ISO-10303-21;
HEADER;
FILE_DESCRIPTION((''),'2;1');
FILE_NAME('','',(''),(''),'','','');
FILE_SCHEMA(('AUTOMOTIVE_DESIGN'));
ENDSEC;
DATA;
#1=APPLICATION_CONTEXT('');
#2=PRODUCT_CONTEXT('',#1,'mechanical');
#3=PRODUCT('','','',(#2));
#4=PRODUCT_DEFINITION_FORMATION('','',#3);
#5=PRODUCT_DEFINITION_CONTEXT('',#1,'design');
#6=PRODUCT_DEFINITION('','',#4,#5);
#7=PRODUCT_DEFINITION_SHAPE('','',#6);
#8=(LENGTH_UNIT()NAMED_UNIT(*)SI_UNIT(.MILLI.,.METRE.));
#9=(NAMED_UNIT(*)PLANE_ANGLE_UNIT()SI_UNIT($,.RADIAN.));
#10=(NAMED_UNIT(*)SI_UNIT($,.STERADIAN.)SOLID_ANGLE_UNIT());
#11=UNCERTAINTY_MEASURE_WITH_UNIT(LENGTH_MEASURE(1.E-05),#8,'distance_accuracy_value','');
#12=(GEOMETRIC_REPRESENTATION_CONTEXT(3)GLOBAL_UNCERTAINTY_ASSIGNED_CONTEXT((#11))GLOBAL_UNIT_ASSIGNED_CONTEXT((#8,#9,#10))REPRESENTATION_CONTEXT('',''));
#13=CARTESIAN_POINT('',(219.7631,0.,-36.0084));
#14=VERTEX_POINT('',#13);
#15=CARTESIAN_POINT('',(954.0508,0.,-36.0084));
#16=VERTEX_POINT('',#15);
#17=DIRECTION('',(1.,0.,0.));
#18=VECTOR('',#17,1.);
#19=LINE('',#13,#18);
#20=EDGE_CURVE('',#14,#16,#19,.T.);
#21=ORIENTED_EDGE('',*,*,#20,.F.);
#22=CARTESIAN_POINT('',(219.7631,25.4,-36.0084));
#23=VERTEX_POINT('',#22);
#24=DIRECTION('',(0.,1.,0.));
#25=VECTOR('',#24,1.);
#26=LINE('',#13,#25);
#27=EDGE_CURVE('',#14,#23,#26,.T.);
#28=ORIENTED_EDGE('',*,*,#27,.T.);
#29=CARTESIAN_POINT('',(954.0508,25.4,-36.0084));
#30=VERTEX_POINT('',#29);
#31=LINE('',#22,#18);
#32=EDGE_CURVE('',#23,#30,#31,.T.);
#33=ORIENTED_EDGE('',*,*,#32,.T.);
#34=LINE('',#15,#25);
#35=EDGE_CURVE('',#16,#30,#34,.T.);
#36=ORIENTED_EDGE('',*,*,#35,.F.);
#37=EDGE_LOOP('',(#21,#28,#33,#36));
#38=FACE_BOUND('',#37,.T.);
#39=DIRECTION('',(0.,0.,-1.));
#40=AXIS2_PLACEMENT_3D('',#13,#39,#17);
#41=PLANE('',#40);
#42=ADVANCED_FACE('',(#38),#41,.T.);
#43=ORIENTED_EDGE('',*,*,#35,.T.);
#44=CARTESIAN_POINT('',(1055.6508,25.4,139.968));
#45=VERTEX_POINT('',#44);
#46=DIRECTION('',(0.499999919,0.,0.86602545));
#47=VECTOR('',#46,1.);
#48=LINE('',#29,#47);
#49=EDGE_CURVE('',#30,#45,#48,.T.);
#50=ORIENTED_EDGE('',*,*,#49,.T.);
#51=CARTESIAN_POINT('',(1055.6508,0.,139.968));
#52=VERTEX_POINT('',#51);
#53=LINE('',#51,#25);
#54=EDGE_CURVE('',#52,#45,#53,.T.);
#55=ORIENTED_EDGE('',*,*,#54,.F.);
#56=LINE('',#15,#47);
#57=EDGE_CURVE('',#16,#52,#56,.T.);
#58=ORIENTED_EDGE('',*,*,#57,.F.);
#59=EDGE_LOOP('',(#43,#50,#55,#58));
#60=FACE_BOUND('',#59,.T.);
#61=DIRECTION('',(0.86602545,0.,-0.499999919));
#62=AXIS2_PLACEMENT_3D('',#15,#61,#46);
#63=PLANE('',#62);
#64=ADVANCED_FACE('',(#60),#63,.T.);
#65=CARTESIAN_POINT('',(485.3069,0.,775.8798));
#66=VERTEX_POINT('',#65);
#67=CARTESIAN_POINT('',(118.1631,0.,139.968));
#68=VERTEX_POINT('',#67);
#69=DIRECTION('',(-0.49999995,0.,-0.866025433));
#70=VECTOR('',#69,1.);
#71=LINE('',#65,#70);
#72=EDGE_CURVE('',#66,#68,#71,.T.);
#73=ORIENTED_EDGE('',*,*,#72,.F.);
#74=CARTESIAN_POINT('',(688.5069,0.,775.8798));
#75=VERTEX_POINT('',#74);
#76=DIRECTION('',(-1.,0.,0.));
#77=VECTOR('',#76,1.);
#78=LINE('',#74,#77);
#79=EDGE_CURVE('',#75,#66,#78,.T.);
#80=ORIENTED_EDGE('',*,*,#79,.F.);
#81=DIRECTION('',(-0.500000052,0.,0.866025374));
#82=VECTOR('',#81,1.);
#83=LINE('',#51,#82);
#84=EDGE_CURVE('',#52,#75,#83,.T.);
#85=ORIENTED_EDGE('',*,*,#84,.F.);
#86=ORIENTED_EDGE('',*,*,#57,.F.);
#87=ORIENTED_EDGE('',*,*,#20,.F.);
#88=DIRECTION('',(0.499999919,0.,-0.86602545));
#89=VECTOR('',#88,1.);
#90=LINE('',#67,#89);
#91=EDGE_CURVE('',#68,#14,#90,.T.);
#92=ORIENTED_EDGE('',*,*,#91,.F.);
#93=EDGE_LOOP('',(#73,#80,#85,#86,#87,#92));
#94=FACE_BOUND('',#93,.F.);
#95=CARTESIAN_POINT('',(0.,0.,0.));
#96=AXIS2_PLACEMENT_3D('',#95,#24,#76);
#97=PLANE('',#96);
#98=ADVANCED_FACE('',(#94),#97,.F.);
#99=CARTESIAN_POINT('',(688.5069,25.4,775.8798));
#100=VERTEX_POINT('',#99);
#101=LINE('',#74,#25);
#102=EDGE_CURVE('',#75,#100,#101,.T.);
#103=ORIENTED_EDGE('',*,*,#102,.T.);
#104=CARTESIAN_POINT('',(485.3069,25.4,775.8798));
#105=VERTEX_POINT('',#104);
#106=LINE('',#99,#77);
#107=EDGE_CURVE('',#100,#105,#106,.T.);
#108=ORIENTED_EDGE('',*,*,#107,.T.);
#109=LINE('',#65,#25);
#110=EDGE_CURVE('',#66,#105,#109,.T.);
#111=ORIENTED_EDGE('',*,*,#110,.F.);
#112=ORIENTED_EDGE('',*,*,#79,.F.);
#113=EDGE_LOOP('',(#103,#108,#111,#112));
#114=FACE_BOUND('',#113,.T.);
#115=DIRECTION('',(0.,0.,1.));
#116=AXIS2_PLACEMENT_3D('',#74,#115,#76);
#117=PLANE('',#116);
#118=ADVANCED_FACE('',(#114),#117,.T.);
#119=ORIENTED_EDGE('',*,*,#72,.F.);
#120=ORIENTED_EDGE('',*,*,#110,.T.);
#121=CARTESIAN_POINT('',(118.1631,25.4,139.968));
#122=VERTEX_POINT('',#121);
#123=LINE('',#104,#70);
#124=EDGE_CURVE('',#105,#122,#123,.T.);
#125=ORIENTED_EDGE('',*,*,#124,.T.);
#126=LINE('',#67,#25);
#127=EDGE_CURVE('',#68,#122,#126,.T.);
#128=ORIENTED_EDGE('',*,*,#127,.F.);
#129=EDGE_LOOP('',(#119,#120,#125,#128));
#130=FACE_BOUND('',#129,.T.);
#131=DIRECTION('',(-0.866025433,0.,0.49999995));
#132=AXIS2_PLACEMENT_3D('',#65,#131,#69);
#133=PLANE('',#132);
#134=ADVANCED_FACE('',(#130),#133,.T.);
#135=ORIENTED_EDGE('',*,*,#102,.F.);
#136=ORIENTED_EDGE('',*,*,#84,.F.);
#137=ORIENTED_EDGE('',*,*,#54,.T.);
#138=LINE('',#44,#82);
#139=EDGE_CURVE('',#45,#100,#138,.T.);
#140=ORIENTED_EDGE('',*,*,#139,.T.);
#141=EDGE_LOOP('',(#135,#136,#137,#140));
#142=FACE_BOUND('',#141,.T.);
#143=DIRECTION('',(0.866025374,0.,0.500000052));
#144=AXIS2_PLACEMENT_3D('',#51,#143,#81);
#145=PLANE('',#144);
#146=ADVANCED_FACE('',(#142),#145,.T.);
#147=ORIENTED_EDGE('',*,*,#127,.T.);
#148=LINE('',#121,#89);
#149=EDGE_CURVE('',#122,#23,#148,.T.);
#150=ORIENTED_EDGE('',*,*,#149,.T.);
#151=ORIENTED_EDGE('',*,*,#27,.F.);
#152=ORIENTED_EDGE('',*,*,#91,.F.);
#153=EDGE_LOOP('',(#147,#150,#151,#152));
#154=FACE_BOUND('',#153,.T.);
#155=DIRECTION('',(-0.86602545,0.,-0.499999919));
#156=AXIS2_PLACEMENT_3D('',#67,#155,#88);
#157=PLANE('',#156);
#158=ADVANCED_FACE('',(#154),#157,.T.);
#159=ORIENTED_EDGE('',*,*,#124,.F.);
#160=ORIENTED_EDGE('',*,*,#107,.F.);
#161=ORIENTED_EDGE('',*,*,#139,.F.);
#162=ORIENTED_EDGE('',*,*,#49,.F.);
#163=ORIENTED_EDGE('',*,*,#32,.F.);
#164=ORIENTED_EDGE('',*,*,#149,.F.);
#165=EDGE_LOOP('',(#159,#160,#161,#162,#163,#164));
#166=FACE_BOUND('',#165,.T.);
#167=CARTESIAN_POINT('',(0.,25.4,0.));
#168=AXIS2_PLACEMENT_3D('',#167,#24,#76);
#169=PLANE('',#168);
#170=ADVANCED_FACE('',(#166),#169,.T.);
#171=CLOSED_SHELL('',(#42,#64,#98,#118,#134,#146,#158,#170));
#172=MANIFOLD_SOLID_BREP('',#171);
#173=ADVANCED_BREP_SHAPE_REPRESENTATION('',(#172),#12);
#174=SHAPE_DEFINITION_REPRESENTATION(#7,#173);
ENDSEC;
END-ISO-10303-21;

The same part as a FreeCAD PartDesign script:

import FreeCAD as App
import Part
import Sketcher
Q = App.Units.Quantity

doc = App.newDocument("Part")
body = doc.addObject("PartDesign::Body", "Body")

sketch1 = doc.addObject("Sketcher::SketchObject", "Sketch")
body.addObject(sketch1)
sketch1.AttachmentSupport = (doc.XZ_Plane, [""])
sketch1.MapMode = "FlatFace"
sketch1.addGeometry([
    Part.LineSegment(App.Vector(954, -36, 0), App.Vector(220, -36, 0)),
    Part.LineSegment(App.Vector(220, -36, 0), App.Vector(118, 140, 0)),
    Part.LineSegment(App.Vector(118, 140, 0), App.Vector(485, 776, 0)),
    Part.LineSegment(App.Vector(485, 776, 0), App.Vector(689, 776, 0)),
    Part.LineSegment(App.Vector(689, 776, 0), App.Vector(1056, 140, 0)),
    Part.LineSegment(App.Vector(1056, 140, 0), App.Vector(954, -36, 0)),
], False)
sketch1.addConstraint([
    Sketcher.Constraint("Coincident", 0, 2, 1, 1),
    Sketcher.Constraint("Coincident", 1, 2, 2, 1),
    Sketcher.Constraint("Coincident", 2, 2, 3, 1),
    Sketcher.Constraint("Coincident", 3, 2, 4, 1),
    Sketcher.Constraint("Coincident", 4, 2, 5, 1),
    Sketcher.Constraint("Coincident", 5, 2, 0, 1),
    Sketcher.Constraint("Horizontal", 0),
    Sketcher.Constraint("Horizontal", 3),
    Sketcher.Constraint("Parallel", 1, 4),
    Sketcher.Constraint("Parallel", 2, 5),
    Sketcher.Constraint("Horizontal", 1, 2, 4, 2),
    Sketcher.Constraint("Equal", 2, 4),
    Sketcher.Constraint("DistanceX", 3, 1, 3, 2, Q("8 in")),
    Sketcher.Constraint("Distance", 1, Q("8 in")),
    Sketcher.Constraint("Angle", 1, Q("120 deg")),
    Sketcher.Constraint("DistanceX", 0, 2, 0, 1, 734.2877),
    Sketcher.Constraint("DistanceX", -1, 1, 0, 2, Q("8.6521 in")),
    Sketcher.Constraint("DistanceY", 0, 2, -1, 1, 36.0084),
])
pad1 = doc.addObject("PartDesign::Pad", "Pad")
body.addObject(pad1)
pad1.Profile = sketch1
pad1.Length = Q("1 in")
pad1.Reversed = True

doc.recompute()
